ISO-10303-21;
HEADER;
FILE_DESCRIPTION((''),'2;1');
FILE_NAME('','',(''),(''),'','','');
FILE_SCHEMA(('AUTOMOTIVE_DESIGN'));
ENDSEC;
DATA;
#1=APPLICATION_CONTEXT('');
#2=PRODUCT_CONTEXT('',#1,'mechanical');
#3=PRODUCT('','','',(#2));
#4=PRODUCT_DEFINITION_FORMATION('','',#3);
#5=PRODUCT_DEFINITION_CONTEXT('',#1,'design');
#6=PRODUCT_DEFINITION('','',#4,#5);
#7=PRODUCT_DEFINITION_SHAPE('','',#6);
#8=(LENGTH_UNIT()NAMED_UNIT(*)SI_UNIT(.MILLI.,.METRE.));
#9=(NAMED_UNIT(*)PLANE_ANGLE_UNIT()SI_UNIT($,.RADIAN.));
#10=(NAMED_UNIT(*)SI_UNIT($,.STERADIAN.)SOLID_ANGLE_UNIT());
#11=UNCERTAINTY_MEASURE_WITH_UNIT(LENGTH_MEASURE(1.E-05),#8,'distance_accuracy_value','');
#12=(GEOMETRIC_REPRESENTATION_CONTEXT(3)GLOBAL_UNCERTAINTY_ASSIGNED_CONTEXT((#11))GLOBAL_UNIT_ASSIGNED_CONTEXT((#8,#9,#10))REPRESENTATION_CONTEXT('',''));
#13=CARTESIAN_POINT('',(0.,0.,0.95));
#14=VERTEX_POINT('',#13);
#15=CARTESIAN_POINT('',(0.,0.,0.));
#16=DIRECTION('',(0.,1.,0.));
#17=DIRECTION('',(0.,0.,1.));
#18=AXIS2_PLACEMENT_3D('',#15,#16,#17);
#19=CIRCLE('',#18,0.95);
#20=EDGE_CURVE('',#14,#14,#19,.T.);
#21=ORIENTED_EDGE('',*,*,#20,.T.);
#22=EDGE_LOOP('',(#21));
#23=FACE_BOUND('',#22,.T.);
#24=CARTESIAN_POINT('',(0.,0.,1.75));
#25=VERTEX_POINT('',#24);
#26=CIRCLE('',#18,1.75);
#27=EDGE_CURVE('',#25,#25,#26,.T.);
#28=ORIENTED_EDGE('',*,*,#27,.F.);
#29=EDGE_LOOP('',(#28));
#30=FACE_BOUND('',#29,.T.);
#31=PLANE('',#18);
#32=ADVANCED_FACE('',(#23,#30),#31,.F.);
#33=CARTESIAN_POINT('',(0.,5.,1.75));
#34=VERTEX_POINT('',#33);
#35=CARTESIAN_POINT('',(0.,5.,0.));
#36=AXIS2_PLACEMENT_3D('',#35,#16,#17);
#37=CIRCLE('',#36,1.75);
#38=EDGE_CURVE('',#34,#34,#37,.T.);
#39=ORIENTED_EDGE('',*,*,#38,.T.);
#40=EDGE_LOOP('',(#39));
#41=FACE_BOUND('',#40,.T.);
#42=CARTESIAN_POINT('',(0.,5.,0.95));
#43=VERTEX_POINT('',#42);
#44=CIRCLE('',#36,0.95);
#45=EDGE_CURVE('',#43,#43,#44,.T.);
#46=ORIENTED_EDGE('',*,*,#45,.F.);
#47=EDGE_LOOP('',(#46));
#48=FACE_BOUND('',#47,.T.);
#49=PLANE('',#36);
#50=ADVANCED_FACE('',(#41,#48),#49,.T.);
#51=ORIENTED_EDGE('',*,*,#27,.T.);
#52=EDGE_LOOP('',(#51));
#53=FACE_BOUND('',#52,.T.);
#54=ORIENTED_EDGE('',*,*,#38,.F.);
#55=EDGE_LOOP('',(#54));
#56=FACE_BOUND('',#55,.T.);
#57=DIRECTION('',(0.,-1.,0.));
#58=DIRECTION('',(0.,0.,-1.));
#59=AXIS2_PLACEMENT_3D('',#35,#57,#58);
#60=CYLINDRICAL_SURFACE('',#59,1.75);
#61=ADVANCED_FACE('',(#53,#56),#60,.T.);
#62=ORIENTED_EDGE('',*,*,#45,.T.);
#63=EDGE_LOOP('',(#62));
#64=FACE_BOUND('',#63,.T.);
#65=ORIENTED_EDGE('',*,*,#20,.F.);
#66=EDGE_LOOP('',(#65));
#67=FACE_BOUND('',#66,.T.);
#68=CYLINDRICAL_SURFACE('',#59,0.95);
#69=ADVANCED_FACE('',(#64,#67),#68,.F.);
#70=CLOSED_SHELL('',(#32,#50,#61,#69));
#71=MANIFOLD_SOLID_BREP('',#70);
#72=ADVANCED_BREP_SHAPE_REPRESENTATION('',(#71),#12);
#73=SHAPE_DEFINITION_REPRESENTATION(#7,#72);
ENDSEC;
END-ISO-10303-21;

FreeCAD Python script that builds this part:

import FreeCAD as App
import Part
import Sketcher

V = App.Vector
Q = App.Units.Quantity

doc = App.newDocument("Part")
body = doc.addObject("PartDesign::Body", "Body")

sketch1 = body.newObject("Sketcher::SketchObject", "Sketch")
sketch1.AttachmentSupport = (doc.getObject("XZ_Plane"), [""])
sketch1.MapMode = "FlatFace"
sketch1.addGeometry([
    Part.Circle(V(0, 0, 0), V(0, 0, 1), 1.8),
    Part.Circle(V(0, 0, 0), V(0, 0, 1), 0.9),
], False)
sketch1.addConstraint([
    Sketcher.Constraint("Coincident", 0, 3, -1, 1),
    Sketcher.Constraint("Coincident", 1, 3, -1, 1),
    Sketcher.Constraint("Diameter", 0, Q("3.5 mm")),
    Sketcher.Constraint("Diameter", 1, Q("1.9 mm")),
])
pad1 = body.newObject("PartDesign::Pad", "Pad")
pad1.Profile = sketch1
pad1.Length = 5
pad1.Reversed = True

doc.recompute()
